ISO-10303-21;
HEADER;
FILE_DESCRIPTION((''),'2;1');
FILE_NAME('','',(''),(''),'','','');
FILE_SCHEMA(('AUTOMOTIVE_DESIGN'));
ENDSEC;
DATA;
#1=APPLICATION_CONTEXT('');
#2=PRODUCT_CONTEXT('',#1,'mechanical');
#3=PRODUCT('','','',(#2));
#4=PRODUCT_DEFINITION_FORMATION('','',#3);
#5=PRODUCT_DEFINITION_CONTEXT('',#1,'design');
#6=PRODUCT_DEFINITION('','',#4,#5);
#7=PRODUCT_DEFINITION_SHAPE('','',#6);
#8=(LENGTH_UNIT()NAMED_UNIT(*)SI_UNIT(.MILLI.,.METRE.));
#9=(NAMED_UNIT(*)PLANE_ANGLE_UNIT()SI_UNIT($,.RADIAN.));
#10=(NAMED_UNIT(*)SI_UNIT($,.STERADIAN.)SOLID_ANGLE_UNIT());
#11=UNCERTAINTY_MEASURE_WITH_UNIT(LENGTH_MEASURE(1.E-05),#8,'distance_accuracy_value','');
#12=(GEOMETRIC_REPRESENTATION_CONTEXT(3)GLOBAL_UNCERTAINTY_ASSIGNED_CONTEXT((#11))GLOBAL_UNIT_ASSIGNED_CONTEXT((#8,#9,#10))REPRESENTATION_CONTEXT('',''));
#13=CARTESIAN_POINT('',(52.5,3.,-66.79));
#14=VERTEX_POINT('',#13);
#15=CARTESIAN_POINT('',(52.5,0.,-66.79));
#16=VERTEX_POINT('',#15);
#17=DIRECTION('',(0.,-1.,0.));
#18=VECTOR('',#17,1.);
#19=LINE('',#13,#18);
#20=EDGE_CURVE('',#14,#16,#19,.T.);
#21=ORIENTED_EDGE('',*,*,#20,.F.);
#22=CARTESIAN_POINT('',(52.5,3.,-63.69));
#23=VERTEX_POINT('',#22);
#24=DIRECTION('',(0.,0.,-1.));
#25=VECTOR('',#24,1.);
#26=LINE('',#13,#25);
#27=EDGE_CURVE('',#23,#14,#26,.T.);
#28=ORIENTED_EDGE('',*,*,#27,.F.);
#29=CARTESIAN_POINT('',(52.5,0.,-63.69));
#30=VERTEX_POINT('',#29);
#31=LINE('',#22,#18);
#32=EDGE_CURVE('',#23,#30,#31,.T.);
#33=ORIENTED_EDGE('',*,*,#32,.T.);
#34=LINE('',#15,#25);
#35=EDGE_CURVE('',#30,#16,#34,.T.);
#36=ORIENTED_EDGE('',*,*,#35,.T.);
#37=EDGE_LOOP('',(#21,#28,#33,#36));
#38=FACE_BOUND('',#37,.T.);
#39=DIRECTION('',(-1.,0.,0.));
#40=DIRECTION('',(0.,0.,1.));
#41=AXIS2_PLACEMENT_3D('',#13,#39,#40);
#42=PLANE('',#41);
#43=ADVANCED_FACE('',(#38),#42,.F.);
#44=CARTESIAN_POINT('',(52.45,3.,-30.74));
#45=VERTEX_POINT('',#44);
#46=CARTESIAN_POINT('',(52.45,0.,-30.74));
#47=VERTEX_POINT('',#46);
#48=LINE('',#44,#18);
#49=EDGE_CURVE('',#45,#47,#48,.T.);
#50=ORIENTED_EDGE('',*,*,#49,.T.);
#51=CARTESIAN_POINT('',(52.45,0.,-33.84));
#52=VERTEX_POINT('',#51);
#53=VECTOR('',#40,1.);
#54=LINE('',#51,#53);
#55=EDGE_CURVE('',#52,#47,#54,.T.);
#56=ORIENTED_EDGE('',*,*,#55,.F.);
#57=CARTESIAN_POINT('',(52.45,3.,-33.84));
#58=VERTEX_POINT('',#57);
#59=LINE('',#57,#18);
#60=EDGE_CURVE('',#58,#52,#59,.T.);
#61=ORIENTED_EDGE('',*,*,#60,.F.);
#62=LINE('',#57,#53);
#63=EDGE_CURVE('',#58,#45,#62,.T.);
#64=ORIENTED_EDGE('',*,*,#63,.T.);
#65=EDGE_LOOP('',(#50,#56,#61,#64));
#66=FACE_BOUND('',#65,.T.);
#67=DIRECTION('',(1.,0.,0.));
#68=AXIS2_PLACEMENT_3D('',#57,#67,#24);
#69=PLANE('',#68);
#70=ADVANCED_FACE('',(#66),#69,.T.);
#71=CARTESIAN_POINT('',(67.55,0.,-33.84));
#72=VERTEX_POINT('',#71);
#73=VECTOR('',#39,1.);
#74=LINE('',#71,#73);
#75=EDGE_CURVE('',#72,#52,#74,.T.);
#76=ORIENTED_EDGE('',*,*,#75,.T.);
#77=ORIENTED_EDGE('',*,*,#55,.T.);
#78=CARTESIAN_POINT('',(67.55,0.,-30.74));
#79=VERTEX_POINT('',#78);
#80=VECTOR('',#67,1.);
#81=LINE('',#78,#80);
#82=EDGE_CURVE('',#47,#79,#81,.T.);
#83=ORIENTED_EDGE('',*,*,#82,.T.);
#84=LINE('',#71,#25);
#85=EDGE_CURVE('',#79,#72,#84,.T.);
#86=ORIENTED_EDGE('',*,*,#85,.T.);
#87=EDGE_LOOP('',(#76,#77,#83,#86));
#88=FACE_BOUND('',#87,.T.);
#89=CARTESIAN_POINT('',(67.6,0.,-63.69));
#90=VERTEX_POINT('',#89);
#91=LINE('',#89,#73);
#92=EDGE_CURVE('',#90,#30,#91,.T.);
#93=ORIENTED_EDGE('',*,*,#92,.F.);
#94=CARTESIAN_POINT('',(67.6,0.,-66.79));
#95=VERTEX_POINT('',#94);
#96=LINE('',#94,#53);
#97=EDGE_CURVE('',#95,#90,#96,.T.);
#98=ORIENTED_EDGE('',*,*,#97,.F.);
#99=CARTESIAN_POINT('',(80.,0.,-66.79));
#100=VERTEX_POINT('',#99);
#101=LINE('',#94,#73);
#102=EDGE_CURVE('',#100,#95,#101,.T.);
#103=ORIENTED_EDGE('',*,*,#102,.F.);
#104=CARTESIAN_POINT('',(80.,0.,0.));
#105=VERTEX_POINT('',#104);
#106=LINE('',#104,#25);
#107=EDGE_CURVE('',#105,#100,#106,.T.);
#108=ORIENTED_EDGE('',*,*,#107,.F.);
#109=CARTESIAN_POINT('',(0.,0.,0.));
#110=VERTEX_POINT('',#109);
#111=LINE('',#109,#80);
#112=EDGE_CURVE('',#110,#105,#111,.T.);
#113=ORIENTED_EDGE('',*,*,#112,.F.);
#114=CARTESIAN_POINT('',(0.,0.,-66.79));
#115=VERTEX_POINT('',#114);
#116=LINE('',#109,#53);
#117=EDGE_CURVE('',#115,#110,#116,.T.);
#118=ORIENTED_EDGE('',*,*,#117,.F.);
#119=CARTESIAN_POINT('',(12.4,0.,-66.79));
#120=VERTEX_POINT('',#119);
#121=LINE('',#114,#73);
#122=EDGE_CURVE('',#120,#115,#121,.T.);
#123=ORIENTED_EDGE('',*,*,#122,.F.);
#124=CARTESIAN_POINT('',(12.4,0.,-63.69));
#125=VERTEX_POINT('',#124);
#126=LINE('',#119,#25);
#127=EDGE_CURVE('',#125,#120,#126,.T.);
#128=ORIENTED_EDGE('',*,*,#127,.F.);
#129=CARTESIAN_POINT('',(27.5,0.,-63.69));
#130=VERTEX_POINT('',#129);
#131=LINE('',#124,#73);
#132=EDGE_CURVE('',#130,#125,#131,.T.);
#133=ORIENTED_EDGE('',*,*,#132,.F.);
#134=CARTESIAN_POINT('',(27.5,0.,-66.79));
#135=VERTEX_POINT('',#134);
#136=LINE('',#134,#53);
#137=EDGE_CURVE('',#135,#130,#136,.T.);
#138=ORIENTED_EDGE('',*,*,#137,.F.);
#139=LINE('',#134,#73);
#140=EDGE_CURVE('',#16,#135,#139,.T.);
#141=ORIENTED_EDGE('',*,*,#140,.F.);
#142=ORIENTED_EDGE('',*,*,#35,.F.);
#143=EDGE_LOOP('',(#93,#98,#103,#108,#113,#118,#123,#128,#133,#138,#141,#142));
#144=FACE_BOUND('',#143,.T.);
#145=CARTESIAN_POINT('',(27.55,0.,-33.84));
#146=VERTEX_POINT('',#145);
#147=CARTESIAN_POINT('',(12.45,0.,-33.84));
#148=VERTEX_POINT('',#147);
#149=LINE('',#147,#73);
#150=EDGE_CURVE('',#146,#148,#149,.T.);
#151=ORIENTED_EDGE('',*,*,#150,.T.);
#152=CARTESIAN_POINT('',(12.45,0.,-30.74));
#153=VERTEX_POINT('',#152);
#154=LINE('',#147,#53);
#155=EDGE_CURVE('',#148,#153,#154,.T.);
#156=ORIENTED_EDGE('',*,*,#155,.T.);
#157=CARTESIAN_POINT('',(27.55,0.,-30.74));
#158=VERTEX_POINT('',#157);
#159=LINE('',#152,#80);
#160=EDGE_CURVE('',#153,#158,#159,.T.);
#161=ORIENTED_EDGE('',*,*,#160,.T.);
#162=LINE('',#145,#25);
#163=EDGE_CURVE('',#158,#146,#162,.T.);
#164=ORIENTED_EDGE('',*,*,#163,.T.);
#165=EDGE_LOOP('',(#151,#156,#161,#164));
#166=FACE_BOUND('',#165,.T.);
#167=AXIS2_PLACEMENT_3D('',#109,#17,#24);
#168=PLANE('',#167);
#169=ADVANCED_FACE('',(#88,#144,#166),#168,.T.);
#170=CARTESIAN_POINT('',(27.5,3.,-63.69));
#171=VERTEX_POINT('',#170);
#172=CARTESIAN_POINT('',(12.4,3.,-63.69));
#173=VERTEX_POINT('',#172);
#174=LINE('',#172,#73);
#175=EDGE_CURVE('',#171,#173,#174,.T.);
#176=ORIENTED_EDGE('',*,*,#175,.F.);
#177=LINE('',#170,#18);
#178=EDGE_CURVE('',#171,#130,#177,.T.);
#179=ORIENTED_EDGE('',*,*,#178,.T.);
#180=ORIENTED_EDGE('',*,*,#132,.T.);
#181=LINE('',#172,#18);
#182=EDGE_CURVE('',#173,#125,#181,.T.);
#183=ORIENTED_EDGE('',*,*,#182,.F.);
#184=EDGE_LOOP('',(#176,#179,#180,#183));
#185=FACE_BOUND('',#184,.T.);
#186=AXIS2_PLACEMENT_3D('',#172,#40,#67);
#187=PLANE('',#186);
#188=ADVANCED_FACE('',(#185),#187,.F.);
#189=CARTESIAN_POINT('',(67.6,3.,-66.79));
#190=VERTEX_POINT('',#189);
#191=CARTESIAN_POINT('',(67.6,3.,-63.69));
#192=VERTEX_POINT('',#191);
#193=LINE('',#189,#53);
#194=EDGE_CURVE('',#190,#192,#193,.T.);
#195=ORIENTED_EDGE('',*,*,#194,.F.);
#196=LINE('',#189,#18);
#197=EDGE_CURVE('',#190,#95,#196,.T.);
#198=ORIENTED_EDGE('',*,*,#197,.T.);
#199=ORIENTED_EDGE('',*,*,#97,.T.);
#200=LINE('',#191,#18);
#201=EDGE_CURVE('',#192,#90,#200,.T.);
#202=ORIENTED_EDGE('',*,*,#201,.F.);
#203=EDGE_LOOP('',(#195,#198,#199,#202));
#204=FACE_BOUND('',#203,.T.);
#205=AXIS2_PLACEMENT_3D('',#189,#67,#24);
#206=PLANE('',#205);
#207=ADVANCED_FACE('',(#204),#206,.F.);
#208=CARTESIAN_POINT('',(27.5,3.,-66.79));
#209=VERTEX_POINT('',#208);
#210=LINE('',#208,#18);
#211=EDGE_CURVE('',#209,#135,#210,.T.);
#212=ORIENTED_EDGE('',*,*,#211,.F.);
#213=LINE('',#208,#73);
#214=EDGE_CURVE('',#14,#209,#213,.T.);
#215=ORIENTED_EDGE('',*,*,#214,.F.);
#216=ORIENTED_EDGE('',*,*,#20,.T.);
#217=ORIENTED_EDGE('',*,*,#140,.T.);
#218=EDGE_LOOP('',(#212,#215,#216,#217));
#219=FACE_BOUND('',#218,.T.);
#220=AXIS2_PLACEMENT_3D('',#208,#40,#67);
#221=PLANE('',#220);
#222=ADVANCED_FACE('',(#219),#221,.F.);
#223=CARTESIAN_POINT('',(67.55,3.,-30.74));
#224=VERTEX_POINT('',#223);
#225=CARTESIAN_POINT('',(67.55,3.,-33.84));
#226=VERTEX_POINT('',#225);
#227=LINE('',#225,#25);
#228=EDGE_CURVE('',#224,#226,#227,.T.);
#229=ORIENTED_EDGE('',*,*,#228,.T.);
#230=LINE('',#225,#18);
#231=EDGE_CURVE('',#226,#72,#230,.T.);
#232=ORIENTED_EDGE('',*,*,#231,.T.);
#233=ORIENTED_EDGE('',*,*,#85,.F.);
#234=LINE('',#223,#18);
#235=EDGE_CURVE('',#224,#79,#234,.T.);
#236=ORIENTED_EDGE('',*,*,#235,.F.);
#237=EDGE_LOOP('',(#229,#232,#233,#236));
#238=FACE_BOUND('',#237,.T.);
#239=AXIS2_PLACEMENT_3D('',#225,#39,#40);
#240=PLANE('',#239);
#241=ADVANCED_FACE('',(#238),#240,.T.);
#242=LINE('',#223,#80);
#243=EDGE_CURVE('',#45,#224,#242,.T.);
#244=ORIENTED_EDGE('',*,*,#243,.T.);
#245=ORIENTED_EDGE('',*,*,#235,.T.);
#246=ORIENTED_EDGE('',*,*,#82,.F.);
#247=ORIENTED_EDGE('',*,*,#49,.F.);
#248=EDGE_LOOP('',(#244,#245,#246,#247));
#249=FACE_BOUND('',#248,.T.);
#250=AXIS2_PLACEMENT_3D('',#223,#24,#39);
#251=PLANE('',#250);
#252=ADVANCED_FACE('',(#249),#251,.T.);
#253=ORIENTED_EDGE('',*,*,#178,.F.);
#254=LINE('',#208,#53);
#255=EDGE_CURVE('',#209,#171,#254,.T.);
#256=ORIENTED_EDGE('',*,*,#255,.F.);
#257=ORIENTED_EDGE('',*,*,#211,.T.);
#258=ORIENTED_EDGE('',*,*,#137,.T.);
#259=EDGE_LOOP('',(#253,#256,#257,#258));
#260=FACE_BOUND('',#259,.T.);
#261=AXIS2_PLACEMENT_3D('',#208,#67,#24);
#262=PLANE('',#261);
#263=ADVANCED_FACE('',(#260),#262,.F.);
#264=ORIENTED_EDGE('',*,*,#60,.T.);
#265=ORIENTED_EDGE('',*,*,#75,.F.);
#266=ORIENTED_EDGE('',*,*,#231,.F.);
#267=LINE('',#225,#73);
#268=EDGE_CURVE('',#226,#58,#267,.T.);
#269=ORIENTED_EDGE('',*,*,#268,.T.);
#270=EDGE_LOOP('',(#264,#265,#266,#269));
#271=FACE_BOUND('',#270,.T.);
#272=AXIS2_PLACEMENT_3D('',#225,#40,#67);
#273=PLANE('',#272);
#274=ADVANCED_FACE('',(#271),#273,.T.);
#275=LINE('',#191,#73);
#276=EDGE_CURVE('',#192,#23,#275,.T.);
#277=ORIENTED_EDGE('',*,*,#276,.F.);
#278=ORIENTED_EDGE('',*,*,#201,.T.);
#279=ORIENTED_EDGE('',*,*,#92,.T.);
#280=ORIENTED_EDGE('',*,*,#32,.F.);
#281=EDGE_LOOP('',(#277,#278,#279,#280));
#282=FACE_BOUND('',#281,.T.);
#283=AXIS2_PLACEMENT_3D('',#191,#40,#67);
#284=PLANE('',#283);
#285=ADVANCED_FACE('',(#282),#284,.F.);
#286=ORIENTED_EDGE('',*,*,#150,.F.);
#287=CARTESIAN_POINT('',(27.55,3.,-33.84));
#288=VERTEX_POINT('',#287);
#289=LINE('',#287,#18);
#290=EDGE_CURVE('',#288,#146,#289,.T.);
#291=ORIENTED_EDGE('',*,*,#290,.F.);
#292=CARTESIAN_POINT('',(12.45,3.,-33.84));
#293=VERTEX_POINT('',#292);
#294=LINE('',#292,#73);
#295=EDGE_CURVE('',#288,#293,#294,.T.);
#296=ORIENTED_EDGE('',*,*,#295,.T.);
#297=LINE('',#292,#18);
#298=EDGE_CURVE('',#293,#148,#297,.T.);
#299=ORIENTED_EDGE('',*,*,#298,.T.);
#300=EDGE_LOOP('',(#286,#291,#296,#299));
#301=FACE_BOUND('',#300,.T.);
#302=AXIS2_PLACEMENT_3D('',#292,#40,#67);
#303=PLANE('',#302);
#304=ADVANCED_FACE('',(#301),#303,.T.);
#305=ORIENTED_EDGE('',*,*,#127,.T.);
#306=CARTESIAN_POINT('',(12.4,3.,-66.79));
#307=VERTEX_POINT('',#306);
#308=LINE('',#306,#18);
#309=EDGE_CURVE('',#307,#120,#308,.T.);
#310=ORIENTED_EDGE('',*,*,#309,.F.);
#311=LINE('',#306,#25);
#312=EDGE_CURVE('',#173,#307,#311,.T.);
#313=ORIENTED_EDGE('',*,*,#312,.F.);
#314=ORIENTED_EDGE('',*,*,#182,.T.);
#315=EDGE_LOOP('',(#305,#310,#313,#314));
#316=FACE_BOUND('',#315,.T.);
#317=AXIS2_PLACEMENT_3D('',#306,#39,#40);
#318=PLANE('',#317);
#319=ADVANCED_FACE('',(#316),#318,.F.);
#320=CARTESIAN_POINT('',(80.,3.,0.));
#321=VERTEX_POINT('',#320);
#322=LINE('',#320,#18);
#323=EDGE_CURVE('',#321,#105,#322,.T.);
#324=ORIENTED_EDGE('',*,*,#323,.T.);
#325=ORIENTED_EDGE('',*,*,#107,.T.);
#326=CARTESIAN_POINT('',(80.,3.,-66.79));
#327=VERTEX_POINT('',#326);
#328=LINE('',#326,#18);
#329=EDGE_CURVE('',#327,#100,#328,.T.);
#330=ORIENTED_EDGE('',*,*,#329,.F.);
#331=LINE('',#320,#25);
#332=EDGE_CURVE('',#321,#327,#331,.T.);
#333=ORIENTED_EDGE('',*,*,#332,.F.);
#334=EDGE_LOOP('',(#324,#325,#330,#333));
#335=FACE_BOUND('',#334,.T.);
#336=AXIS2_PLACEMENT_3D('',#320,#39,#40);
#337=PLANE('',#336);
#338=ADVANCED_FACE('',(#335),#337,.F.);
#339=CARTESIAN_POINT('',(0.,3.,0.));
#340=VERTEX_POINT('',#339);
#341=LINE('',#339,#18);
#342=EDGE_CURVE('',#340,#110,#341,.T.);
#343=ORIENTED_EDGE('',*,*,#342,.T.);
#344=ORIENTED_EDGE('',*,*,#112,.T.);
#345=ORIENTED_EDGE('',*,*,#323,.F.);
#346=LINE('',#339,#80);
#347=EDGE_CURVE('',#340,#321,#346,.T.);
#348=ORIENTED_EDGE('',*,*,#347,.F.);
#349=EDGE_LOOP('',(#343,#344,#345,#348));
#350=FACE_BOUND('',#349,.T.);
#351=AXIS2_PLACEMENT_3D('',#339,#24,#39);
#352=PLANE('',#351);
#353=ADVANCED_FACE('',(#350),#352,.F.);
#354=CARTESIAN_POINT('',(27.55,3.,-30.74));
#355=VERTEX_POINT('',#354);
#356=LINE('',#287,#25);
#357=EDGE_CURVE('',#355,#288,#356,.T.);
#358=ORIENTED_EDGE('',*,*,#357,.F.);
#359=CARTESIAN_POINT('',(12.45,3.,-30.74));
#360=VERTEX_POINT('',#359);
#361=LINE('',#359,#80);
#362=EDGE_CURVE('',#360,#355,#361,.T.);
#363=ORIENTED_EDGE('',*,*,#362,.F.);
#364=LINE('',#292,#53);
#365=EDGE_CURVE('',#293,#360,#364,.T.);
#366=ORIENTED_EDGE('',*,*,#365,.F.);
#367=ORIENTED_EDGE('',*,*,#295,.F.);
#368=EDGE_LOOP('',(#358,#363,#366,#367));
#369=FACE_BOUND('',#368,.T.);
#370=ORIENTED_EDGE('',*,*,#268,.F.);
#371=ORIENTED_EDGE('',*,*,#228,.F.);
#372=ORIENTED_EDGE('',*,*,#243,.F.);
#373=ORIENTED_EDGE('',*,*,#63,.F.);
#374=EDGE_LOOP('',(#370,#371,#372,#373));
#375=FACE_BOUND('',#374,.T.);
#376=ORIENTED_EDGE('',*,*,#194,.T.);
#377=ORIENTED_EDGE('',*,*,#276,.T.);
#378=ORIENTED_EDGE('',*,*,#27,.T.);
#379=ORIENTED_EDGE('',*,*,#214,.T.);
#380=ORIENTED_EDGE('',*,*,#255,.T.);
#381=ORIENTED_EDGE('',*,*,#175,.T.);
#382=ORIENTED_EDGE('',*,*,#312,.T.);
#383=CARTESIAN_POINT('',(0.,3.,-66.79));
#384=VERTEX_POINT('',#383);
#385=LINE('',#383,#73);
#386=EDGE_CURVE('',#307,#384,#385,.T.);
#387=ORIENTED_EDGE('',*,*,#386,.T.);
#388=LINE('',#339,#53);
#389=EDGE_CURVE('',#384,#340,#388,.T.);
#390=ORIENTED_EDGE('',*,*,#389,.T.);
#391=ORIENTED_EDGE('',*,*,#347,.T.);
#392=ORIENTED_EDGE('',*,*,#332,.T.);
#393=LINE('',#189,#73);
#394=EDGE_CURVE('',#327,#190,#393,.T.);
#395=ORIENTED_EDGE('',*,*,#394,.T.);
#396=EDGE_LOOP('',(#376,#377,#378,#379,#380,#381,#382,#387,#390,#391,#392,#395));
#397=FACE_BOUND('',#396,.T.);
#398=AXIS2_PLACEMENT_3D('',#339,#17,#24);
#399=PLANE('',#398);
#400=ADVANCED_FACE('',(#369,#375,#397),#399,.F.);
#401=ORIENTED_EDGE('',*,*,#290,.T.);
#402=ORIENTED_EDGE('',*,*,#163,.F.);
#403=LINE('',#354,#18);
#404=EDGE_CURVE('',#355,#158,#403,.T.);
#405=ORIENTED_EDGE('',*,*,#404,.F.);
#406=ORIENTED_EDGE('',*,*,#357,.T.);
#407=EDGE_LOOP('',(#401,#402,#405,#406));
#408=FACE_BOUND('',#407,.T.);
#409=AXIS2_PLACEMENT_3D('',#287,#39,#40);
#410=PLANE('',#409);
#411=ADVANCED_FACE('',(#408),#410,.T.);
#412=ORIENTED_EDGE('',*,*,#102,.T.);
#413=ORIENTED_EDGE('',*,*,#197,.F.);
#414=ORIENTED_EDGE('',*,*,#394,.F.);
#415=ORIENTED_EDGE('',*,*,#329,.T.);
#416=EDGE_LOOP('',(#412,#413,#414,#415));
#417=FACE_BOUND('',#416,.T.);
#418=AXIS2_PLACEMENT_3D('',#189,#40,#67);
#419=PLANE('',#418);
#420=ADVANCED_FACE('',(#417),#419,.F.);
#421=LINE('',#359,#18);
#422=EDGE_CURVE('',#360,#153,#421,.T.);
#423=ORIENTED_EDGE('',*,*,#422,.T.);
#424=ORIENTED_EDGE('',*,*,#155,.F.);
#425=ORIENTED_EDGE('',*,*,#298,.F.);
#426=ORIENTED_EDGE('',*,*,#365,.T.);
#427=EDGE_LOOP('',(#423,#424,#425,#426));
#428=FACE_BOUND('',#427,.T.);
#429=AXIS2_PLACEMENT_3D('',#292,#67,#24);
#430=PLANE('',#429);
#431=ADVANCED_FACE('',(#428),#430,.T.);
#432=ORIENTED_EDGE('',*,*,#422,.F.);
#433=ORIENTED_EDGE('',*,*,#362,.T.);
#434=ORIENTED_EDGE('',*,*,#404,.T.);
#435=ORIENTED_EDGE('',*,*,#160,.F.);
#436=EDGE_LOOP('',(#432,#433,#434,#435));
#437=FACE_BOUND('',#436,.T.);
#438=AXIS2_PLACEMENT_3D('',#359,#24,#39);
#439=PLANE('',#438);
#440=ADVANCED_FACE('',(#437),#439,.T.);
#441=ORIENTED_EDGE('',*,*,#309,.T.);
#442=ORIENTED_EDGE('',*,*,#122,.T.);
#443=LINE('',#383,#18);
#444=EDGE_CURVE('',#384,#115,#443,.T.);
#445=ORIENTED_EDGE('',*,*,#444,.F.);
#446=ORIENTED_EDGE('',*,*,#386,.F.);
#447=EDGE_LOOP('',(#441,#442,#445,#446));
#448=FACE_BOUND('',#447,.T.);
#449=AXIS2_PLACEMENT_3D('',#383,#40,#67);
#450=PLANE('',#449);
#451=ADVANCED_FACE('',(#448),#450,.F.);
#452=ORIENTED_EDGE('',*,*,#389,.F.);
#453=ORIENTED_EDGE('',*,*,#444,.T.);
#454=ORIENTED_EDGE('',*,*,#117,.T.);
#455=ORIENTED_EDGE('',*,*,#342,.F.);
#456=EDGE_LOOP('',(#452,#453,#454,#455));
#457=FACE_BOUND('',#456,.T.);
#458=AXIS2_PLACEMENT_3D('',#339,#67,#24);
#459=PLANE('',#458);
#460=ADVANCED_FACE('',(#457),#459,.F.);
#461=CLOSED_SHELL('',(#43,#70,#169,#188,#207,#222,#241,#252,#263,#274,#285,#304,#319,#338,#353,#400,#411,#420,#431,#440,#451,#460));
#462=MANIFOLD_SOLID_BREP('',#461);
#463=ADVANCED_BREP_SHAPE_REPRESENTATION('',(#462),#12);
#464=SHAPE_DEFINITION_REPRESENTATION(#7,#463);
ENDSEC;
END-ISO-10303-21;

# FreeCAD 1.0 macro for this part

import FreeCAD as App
import Part
import Sketcher
from FreeCAD import Vector
Q = App.Units.Quantity


def add_polygon(sketch, points):
    """Adds a closed chain of lines whose ends are joined by coincident constraints."""
    first, n = sketch.GeometryCount, len(points)
    for a, b in zip(points, points[1:] + points[:1]):
        sketch.addGeometry(Part.LineSegment(App.Vector(*a, 0), App.Vector(*b, 0)), False)
    for i in range(n):
        sketch.addConstraint(Sketcher.Constraint("Coincident", first + i, 2, first + (i + 1) % n, 1))

doc = App.newDocument("Part")
body = doc.addObject("PartDesign::Body", "Body")

# Sketch on XZ plane
sketch1 = body.newObject("Sketcher::SketchObject", "Sketch")
sketch1.AttachmentSupport = (doc.getObject("XZ_Plane"), [""])
sketch1.MapMode = "FlatFace"
add_polygon(sketch1, [(0, 0), (80, 0), (80, -66.8), (67.6, -66.8), (67.6, -63.7), (52.5, -63.7), (52.5, -66.8), (27.5, -66.8), (27.5, -63.7), (12.4, -63.7), (12.4, -66.8), (0, -66.8)])  # lines 0-11
add_polygon(sketch1, [(27.6, -30.7), (12.4, -30.7), (12.4, -33.8), (27.6, -33.8)])  # lines 12-15
add_polygon(sketch1, [(67.5, -30.7), (52.5, -30.7), (52.5, -33.8), (67.5, -33.8)])  # lines 16-19
sketch1.addConstraint([
    Sketcher.Constraint("Horizontal", 0),
    Sketcher.Constraint("Vertical", 1),
    Sketcher.Constraint("Horizontal", 2),
    Sketcher.Constraint("Vertical", 3),
    Sketcher.Constraint("Horizontal", 4),
    Sketcher.Constraint("Vertical", 5),
    Sketcher.Constraint("Horizontal", 6),
    Sketcher.Constraint("Vertical", 7),
    Sketcher.Constraint("Horizontal", 8),
    Sketcher.Constraint("Vertical", 9),
    Sketcher.Constraint("Horizontal", 10),
    Sketcher.Constraint("Vertical", 11),
    Sketcher.Constraint("Horizontal", 12),
    Sketcher.Constraint("Vertical", 13),
    Sketcher.Constraint("Horizontal", 14),
    Sketcher.Constraint("Vertical", 15),
    Sketcher.Constraint("Horizontal", 16),
    Sketcher.Constraint("Vertical", 17),
    Sketcher.Constraint("Horizontal", 18),
    Sketcher.Constraint("Vertical", 19),
    Sketcher.Constraint("Coincident", 11, 2, -1, 1),
    Sketcher.Constraint("Horizontal", 2, 2, 5, 2),
    Sketcher.Constraint("Horizontal", 4, 2, 7, 2),
    Sketcher.Constraint("Horizontal", 6, 2, 9, 2),
    Sketcher.Constraint("Horizontal", 15, 2, 16, 2),
    Sketcher.Constraint("Horizontal", 14, 2, 17, 2),
    Sketcher.Constraint("Equal", 4, 8),
    Sketcher.Constraint("Equal", 2, 10),
    Sketcher.Constraint("Equal", 8, 12),
    Sketcher.Constraint("Equal", 14, 16),
    Sketcher.Constraint("Equal", 9, 13),
    Sketcher.Constraint("DistanceX", 0, 1, 0, 2, Q("80 mm")),
    Sketcher.Constraint("DistanceX", 6, 2, 6, 1, Q("25 mm")),
    Sketcher.Constraint("DistanceX", 2, 2, 2, 1, Q("12.4 mm")),
    Sketcher.Constraint("DistanceY", 3, 1, 3, 2, Q("3.1 mm")),
    Sketcher.Constraint("DistanceY", 1, 2, 1, 1, Q("66.79 mm")),
    Sketcher.Constraint("DistanceX", 15, 2, 16, 2, Q("24.9 mm")),
    Sketcher.Constraint("DistanceX", -1, 1, 12, 2, Q("12.45 mm")),
    Sketcher.Constraint("DistanceY", 12, 2, -1, 1, Q("30.74 mm")),
])
pad1 = body.newObject("PartDesign::Pad", "Pad")
pad1.Profile = sketch1
pad1.Length = 3
pad1.Reversed = True

doc.recompute()
